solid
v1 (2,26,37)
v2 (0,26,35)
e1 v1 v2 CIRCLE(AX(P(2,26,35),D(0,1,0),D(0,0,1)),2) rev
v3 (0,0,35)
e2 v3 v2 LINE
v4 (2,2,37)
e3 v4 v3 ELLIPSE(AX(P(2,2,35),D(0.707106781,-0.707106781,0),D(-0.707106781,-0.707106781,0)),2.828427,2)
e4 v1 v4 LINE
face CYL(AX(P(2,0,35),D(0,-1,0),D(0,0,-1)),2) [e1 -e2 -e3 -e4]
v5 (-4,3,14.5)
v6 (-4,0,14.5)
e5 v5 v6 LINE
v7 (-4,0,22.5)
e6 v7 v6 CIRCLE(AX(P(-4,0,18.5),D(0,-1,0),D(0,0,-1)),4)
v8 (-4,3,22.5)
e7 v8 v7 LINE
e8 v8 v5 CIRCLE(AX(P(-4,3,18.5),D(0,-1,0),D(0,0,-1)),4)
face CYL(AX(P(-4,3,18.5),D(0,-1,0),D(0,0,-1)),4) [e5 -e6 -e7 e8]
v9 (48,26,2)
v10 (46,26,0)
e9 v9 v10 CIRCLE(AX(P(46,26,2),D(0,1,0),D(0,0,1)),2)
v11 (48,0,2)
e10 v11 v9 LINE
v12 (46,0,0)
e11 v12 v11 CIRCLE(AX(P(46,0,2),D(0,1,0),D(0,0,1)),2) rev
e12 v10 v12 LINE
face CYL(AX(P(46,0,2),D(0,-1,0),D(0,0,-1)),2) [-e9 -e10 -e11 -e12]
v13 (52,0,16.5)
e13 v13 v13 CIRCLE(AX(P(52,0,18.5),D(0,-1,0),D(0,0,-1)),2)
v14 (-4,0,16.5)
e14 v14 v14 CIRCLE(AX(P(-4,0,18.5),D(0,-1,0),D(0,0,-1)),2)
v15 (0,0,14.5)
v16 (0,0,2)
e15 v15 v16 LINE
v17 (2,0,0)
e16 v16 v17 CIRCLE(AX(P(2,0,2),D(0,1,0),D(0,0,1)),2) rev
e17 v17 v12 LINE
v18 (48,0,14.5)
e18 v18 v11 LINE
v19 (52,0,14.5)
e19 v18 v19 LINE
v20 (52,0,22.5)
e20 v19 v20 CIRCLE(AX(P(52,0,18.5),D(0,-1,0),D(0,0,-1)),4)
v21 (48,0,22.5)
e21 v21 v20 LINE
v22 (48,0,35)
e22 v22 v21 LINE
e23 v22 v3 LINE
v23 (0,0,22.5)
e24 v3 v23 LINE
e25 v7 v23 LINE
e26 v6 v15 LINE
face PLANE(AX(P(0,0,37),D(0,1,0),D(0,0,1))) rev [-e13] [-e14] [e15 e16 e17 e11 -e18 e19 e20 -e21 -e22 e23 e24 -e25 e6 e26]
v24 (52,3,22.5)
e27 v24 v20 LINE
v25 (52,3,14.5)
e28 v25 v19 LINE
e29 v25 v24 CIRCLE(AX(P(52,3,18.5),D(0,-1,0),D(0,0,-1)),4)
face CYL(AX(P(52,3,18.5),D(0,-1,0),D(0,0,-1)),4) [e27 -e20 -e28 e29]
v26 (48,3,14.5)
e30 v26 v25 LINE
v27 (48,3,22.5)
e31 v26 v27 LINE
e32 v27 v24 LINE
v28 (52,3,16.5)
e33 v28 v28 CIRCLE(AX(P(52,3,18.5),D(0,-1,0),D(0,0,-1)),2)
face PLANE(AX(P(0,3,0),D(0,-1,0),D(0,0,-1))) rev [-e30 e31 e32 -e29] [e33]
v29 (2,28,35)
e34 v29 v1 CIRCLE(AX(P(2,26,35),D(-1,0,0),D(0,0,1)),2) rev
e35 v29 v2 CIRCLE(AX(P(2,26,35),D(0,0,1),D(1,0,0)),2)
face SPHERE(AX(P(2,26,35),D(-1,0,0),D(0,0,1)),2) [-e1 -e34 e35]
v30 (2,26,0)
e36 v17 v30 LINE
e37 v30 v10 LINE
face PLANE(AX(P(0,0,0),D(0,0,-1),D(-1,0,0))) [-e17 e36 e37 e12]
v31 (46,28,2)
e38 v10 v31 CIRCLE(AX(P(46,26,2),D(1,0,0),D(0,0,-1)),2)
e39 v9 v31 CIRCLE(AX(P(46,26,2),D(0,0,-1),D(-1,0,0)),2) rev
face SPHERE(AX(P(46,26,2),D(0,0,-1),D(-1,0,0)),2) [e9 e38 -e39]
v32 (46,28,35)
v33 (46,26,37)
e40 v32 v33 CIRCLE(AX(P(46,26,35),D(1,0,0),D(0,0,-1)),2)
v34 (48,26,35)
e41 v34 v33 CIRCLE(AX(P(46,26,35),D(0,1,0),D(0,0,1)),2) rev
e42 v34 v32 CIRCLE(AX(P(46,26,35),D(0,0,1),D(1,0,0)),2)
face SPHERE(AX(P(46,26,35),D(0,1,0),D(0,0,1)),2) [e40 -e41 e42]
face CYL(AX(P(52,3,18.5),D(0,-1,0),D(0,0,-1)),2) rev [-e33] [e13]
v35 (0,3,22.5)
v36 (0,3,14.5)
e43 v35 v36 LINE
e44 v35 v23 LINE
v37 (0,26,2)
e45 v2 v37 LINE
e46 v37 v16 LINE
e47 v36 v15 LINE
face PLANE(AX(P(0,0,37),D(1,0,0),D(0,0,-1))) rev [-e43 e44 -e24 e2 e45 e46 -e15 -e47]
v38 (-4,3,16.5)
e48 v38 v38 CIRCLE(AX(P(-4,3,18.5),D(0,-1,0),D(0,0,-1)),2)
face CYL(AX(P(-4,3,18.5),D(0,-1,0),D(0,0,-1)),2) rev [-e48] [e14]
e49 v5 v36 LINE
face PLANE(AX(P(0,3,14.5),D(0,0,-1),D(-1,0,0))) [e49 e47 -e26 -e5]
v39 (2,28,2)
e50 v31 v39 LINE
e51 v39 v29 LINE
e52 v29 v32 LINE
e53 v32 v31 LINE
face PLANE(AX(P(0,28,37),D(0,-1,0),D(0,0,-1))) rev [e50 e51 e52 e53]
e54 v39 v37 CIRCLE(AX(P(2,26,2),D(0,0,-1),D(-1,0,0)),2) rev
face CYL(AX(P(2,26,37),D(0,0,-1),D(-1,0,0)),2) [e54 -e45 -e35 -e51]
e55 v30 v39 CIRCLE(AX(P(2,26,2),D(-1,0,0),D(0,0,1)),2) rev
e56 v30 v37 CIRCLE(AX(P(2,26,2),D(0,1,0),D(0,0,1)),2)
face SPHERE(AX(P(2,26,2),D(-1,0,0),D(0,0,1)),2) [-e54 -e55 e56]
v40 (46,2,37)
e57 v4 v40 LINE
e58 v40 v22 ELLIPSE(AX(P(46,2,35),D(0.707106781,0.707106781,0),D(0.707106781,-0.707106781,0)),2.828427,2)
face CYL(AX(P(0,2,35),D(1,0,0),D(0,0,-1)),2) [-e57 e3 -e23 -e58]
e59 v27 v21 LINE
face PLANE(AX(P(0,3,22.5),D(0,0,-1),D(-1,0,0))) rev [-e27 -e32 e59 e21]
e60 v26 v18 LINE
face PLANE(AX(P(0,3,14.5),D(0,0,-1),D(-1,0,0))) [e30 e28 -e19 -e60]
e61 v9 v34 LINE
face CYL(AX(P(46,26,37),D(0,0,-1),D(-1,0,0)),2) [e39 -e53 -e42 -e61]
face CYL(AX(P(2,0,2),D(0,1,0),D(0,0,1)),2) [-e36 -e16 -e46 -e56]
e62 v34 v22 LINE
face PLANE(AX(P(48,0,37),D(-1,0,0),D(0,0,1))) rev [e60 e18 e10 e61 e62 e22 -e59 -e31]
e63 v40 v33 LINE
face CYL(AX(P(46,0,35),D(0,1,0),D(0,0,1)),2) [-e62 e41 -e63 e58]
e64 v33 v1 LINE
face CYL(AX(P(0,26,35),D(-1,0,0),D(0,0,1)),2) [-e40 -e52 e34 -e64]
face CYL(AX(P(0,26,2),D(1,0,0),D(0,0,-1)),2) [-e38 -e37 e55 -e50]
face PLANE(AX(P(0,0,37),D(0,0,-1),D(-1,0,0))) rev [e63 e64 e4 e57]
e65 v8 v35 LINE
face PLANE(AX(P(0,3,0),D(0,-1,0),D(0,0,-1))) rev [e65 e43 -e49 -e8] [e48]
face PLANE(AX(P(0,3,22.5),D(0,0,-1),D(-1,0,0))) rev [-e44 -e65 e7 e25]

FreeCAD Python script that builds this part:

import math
import FreeCAD as App
import Part
import Sketcher


def edges_at(feature, points):
    """Names of the edges that pass closest to the given points."""
    edges = feature.Shape.Edges
    near = lambda p: min(range(len(edges)), key=lambda i: edges[i].distToShape(Part.Vertex(*p))[0])
    return sorted({f"Edge{near(p) + 1}" for p in points})

doc = App.newDocument("Part")
body = doc.addObject("PartDesign::Body", "Body")

# Sketch on XY plane
sketch1 = body.newObject("Sketcher::SketchObject", "Sketch")
sketch1.AttachmentSupport = (doc.getObject("XY_Plane"), [""])
sketch1.MapMode = "FlatFace"
sketch1.addGeometry([
    Part.LineSegment(App.Vector(0, 28, 0), App.Vector(0, 0, 0)),
    Part.LineSegment(App.Vector(0, 0, 0), App.Vector(48, 0, 0)),
    Part.LineSegment(App.Vector(48, 0, 0), App.Vector(48, 28, 0)),
    Part.LineSegment(App.Vector(48, 28, 0), App.Vector(0, 28, 0)),
], False)
sketch1.addConstraint([
    Sketcher.Constraint("Coincident", 0, 2, 1, 1),
    Sketcher.Constraint("Coincident", 1, 2, 2, 1),
    Sketcher.Constraint("Coincident", 2, 2, 3, 1),
    Sketcher.Constraint("Coincident", 3, 2, 0, 1),
    Sketcher.Constraint("Vertical", 0),
    Sketcher.Constraint("Horizontal", 1),
    Sketcher.Constraint("Vertical", 2),
    Sketcher.Constraint("Horizontal", 3),
    Sketcher.Constraint("Coincident", 0, 2, -1, 1),
    Sketcher.Constraint("DistanceX", 1, 1, 1, 2, 48.0),
    Sketcher.Constraint("DistanceY", 0, 2, 0, 1, 28.0),
])
pad1 = body.newObject("PartDesign::Pad", "Pad")
pad1.Profile = sketch1
pad1.Length = 37
doc.recompute()

fillet = body.newObject("PartDesign::Fillet", "Fillet")
fillet.Base = (pad1, edges_at(pad1, [
    (48, 14, 37),
    (24, 28, 37),
    (0, 14, 37),
    (24, 28, 0),
    (48, 14, 0),
    (0, 14, 0),
    (0, 28, 18.5),
    (48, 28, 18.5),
    (24, 0, 37),
]))
fillet.Radius = 2

# Sketch on XZ plane
sketch2 = body.newObject("Sketcher::SketchObject", "Sketch001")
sketch2.AttachmentSupport = (doc.getObject("XZ_Plane"), [""])
sketch2.MapMode = "FlatFace"
sketch2.addGeometry([
    Part.LineSegment(App.Vector(52, 22.5, 0), App.Vector(-4, 22.5, 0)),  # 0
    Part.ArcOfCircle(Part.Circle(App.Vector(-4, 18.5, 0), App.Vector(0, 0, 1), 4), math.radians(90), math.radians(270)),  # 1
    Part.LineSegment(App.Vector(-4, 14.5, 0), App.Vector(52, 14.5, 0)),  # 2
    Part.ArcOfCircle(Part.Circle(App.Vector(52, 18.5, 0), App.Vector(0, 0, 1), 4), math.radians(-90), math.radians(90)),  # 3
    Part.Circle(App.Vector(52, 18.5, 0), App.Vector(0, 0, 1), 2),  # 4
    Part.Circle(App.Vector(-4, 18.5, 0), App.Vector(0, 0, 1), 2),  # 5
], False)
sketch2.addConstraint([
    Sketcher.Constraint("Tangent", 0, 2, 1, 1),
    Sketcher.Constraint("Tangent", 1, 2, 2, 1),
    Sketcher.Constraint("Tangent", 2, 2, 3, 1),
    Sketcher.Constraint("Tangent", 3, 2, 0, 1),
    Sketcher.Constraint("Horizontal", 0),
    Sketcher.Constraint("Horizontal", 2),
    Sketcher.Constraint("Coincident", 4, 3, 3, 3),
    Sketcher.Constraint("Coincident", 5, 3, 1, 3),
    Sketcher.Constraint("Equal", 4, 5),
    Sketcher.Constraint("Diameter", 4, 4.0),
    Sketcher.Constraint("Radius", 1, 4.0),
    Sketcher.Constraint("DistanceX", 0, 2, 0, 1, 56.0),
    Sketcher.Constraint("DistanceX", 1, 3, -1, 1, 4.0),
    Sketcher.Constraint("DistanceY", -1, 1, 1, 3, 18.5),
])
pad2 = body.newObject("PartDesign::Pad", "Pad001")
pad2.Profile = sketch2
pad2.Length = 3
pad2.Reversed = True

doc.recompute()
